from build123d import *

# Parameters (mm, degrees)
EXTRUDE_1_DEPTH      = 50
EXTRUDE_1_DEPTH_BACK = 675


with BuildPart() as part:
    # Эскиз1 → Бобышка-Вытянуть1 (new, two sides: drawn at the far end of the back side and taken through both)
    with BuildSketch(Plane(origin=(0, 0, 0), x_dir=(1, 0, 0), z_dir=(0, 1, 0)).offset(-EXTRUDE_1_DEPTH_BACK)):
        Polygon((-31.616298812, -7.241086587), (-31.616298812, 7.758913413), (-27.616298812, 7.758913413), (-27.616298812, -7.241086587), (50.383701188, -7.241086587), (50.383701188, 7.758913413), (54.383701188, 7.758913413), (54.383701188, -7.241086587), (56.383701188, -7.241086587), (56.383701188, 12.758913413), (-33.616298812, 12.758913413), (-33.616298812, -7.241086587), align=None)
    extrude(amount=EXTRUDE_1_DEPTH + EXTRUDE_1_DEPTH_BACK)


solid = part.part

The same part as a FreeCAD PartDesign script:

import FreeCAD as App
import Part
import Sketcher
from FreeCAD import Vector

doc = App.newDocument("Part")
body = doc.addObject("PartDesign::Body", "Body")

# Sketch on XZ plane
sketch1 = doc.addObject("Sketcher::SketchObject", "Sketch")
body.addObject(sketch1)
sketch1.AttachmentSupport = (doc.XZ_Plane, [""])
sketch1.MapMode = "FlatFace"
sketch1.addGeometry([
    Part.LineSegment(Vector(-31.6, 7.2, 0), Vector(-31.6, -7.8, 0)),  # 0
    Part.LineSegment(Vector(-31.6, -7.8, 0), Vector(-27.6, -7.8, 0)),  # 1
    Part.LineSegment(Vector(-27.6, -7.8, 0), Vector(-27.6, 7.2, 0)),  # 2
    Part.LineSegment(Vector(-27.6, 7.2, 0), Vector(50.4, 7.2, 0)),  # 3
    Part.LineSegment(Vector(50.4, 7.2, 0), Vector(50.4, -7.8, 0)),  # 4
    Part.LineSegment(Vector(50.4, -7.8, 0), Vector(54.4, -7.8, 0)),  # 5
    Part.LineSegment(Vector(54.4, -7.8, 0), Vector(54.4, 7.2, 0)),  # 6
    Part.LineSegment(Vector(54.4, 7.2, 0), Vector(56.4, 7.2, 0)),  # 7
    Part.LineSegment(Vector(56.4, 7.2, 0), Vector(56.4, -12.8, 0)),  # 8
    Part.LineSegment(Vector(56.4, -12.8, 0), Vector(-33.6, -12.8, 0)),  # 9
    Part.LineSegment(Vector(-33.6, -12.8, 0), Vector(-33.6, 7.2, 0)),  # 10
    Part.LineSegment(Vector(-33.6, 7.2, 0), Vector(-31.6, 7.2, 0)),  # 11
], False)
sketch1.addConstraint([
    Sketcher.Constraint("Coincident", 0, 2, 1, 1),
    Sketcher.Constraint("Coincident", 1, 2, 2, 1),
    Sketcher.Constraint("Coincident", 2, 2, 3, 1),
    Sketcher.Constraint("Coincident", 3, 2, 4, 1),
    Sketcher.Constraint("Coincident", 4, 2, 5, 1),
    Sketcher.Constraint("Coincident", 5, 2, 6, 1),
    Sketcher.Constraint("Coincident", 6, 2, 7, 1),
    Sketcher.Constraint("Coincident", 7, 2, 8, 1),
    Sketcher.Constraint("Coincident", 8, 2, 9, 1),
    Sketcher.Constraint("Coincident", 9, 2, 10, 1),
    Sketcher.Constraint("Coincident", 10, 2, 11, 1),
    Sketcher.Constraint("Coincident", 11, 2, 0, 1),
    Sketcher.Constraint("Vertical", 0),
    Sketcher.Constraint("Horizontal", 1),
    Sketcher.Constraint("Vertical", 2),
    Sketcher.Constraint("Horizontal", 3),
    Sketcher.Constraint("Vertical", 4),
    Sketcher.Constraint("Horizontal", 5),
    Sketcher.Constraint("Vertical", 6),
    Sketcher.Constraint("Horizontal", 7),
    Sketcher.Constraint("Vertical", 8),
    Sketcher.Constraint("Horizontal", 9),
    Sketcher.Constraint("Vertical", 10),
    Sketcher.Constraint("Horizontal", 11),
    Sketcher.Constraint("Horizontal", 1, 2, 4, 2),
    Sketcher.Constraint("Horizontal", 3, 2, 6, 2),
    Sketcher.Constraint("Horizontal", 7, 2, 10, 2),
    Sketcher.Constraint("Equal", 1, 5),
    Sketcher.Constraint("Equal", 7, 11),
    Sketcher.Constraint("DistanceX", 1, 1, 1, 2, 4.0),
    Sketcher.Constraint("DistanceX", 3, 1, 3, 2, 78.0),
    Sketcher.Constraint("DistanceX", 7, 1, 7, 2, 2.0),
    Sketcher.Constraint("DistanceY", 0, 2, 0, 1, 15.0),
    Sketcher.Constraint("DistanceY", 8, 2, 8, 1, 20.0),
    Sketcher.Constraint("DistanceX", 0, 2, -1, 1, 31.616299),
    Sketcher.Constraint("DistanceY", 0, 2, -1, 1, 7.758913),
])
pad1 = doc.addObject("PartDesign::Pad", "Pad")
body.addObject(pad1)
pad1.Profile = sketch1
pad1.Type = "TwoLengths"
pad1.Length = 50
pad1.Length2 = 675
pad1.Reversed = True

doc.recompute()
